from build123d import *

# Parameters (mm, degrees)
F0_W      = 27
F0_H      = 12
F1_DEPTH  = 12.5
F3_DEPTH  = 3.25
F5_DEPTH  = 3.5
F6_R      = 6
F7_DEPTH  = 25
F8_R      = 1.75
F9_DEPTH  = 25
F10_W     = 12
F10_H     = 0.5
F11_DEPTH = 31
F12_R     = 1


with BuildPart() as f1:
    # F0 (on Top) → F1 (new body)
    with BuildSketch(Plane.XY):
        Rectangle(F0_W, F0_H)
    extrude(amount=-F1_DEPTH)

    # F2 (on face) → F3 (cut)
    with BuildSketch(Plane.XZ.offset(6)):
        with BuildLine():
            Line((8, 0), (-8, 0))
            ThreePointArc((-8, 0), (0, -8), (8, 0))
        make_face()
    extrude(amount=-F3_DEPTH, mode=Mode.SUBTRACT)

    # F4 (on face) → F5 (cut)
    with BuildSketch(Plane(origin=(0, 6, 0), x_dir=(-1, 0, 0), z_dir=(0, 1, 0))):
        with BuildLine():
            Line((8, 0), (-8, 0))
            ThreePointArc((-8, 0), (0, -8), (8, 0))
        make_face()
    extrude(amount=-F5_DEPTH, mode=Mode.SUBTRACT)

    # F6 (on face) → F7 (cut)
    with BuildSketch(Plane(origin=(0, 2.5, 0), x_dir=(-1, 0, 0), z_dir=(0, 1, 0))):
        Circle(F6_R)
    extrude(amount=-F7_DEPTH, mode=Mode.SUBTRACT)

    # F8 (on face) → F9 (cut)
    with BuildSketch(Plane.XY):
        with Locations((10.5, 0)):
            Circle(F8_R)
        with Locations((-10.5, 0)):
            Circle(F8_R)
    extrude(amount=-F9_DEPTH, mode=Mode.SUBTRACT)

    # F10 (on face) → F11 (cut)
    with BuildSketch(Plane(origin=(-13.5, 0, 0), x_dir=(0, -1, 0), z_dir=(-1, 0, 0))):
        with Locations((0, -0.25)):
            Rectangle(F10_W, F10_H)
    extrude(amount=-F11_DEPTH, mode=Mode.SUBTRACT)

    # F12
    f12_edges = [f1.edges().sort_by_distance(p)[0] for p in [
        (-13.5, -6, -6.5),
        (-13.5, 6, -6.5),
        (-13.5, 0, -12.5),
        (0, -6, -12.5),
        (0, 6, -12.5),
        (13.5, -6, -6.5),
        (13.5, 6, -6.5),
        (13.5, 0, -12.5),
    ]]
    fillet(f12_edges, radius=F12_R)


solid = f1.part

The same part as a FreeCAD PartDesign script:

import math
import FreeCAD as App
import Part
import Sketcher

V = App.Vector


def edges_at(feature, points):
    """Names of the edges that pass closest to the given points."""
    edges = feature.Shape.Edges
    near = lambda p: min(range(len(edges)), key=lambda i: edges[i].distToShape(Part.Vertex(*p))[0])
    return sorted({f"Edge{near(p) + 1}" for p in points})


def add_polygon(sketch, points):
    """Adds a closed chain of lines whose ends are joined by coincident constraints."""
    first, n = sketch.GeometryCount, len(points)
    for a, b in zip(points, points[1:] + points[:1]):
        sketch.addGeometry(Part.LineSegment(App.Vector(*a, 0), App.Vector(*b, 0)), False)
    for i in range(n):
        sketch.addConstraint(Sketcher.Constraint("Coincident", first + i, 2, first + (i + 1) % n, 1))

doc = App.newDocument("Part")
params = doc.addObject("Spreadsheet::Sheet", "Params")
for row, (alias, value) in enumerate([
    ("sketch1_width", "27 mm"),
    ("sketch1_height", "12 mm"),
    ("pad1_length", "12.5 mm"),
    ("sketch2_radius", "8 mm"),
    ("pocket1_length", "3.25 mm"),
    ("sketch3_radius", "8 mm"),
    ("pocket2_length", "3.5 mm"),
    ("sketch4_diameter", "12 mm"),
    ("pocket3_length", "25 mm"),
    ("sketch5_diameter", "3.5 mm"),
    ("pocket4_length", "25 mm"),
    ("sketch6_width", "12 mm"),
    ("sketch6_height", "0.5 mm"),
    ("pocket5_length", "31 mm"),
    ("fillet_radius", "1 mm"),
], start=1):
    params.set(f"A{row}", alias)
    params.set(f"B{row}", "=" + value)
    params.setAlias(f"B{row}", alias)

body = doc.addObject("PartDesign::Body", "Body")

sketch1 = doc.addObject("Sketcher::SketchObject", "Sketch")
body.addObject(sketch1)
sketch1.AttachmentSupport = (doc.XY_Plane, [""])
sketch1.MapMode = "FlatFace"
add_polygon(sketch1, [(-13.5, 6), (-13.5, -6), (13.5, -6), (13.5, 6)])
sketch1.addConstraint([
    Sketcher.Constraint("Vertical", 0),
    Sketcher.Constraint("Horizontal", 1),
    Sketcher.Constraint("Vertical", 2),
    Sketcher.Constraint("Horizontal", 3),
    Sketcher.Constraint("Symmetric", 0, 2, 2, 2, -1, 1),
    Sketcher.Constraint("DistanceX", 1, 1, 1, 2, 27.0),
    Sketcher.Constraint("DistanceY", 0, 2, 0, 1, 12.0),
])
sketch1.setExpression("Constraints[9]", "Params.sketch1_width")
sketch1.setExpression("Constraints[10]", "Params.sketch1_height")
pad1 = doc.addObject("PartDesign::Pad", "Pad")
body.addObject(pad1)
pad1.Profile = sketch1
pad1.setExpression("Length", "Params.pad1_length")
pad1.Reversed = True

sketch2 = doc.addObject("Sketcher::SketchObject", "Sketch001")
body.addObject(sketch2)
sketch2.AttachmentSupport = (doc.XZ_Plane, [""])
sketch2.MapMode = "FlatFace"
sketch2.AttachmentOffset = App.Placement(V(0, 0, 6), App.Rotation())
sketch2.addGeometry([
    Part.LineSegment(V(8, 0, 0), V(-8, 0, 0)),
    Part.ArcOfCircle(Part.Circle(V(0, 0, 0), V(0, 0, 1), 8), math.radians(180), math.radians(360)),
], False)
sketch2.addConstraint([
    Sketcher.Constraint("Coincident", 0, 1, 1, 2),
    Sketcher.Constraint("Coincident", 1, 1, 0, 2),
    Sketcher.Constraint("Horizontal", 0),
    Sketcher.Constraint("Coincident", 1, 3, -1, 1),
    Sketcher.Constraint("PointOnObject", 0, 1, -1),
    Sketcher.Constraint("Radius", 1, 8.0),
])
sketch2.setExpression("Constraints[5]", "Params.sketch2_radius")
pocket1 = doc.addObject("PartDesign::Pocket", "Pocket")
body.addObject(pocket1)
pocket1.Profile = sketch2
pocket1.setExpression("Length", "Params.pocket1_length")

sketch3 = doc.addObject("Sketcher::SketchObject", "Sketch002")
body.addObject(sketch3)
sketch3.AttachmentSupport = (doc.XZ_Plane, [""])
sketch3.MapMode = "FlatFace"
sketch3.AttachmentOffset = App.Placement(V(0, 0, -6), App.Rotation())
sketch3.addGeometry([
    Part.LineSegment(V(-8, 0, 0), V(8, 0, 0)),
    Part.ArcOfCircle(Part.Circle(V(0, 0, 0), V(0, 0, 1), 8), math.radians(180), math.radians(360)),
], False)
sketch3.addConstraint([
    Sketcher.Constraint("Coincident", 0, 1, 1, 1),
    Sketcher.Constraint("Coincident", 1, 2, 0, 2),
    Sketcher.Constraint("Horizontal", 0),
    Sketcher.Constraint("Coincident", 1, 3, -1, 1),
    Sketcher.Constraint("PointOnObject", 0, 1, -1),
    Sketcher.Constraint("Radius", 1, 8.0),
])
sketch3.setExpression("Constraints[5]", "Params.sketch3_radius")
pocket2 = doc.addObject("PartDesign::Pocket", "Pocket001")
body.addObject(pocket2)
pocket2.Profile = sketch3
pocket2.setExpression("Length", "Params.pocket2_length")
pocket2.Reversed = True

sketch4 = doc.addObject("Sketcher::SketchObject", "Sketch003")
body.addObject(sketch4)
sketch4.AttachmentSupport = (doc.XZ_Plane, [""])
sketch4.MapMode = "FlatFace"
sketch4.AttachmentOffset = App.Placement(V(0, 0, -2.5), App.Rotation())
sketch4.addGeometry(Part.Circle(V(0, 0, 0), V(0, 0, 1), 6), False)
sketch4.addConstraint([
    Sketcher.Constraint("Coincident", 0, 3, -1, 1),
    Sketcher.Constraint("Diameter", 0, 12.0),
])
sketch4.setExpression("Constraints[1]", "Params.sketch4_diameter")
pocket3 = doc.addObject("PartDesign::Pocket", "Pocket002")
body.addObject(pocket3)
pocket3.Profile = sketch4
pocket3.setExpression("Length", "Params.pocket3_length")
pocket3.Reversed = True

sketch5 = doc.addObject("Sketcher::SketchObject", "Sketch004")
body.addObject(sketch5)
sketch5.AttachmentSupport = (doc.XY_Plane, [""])
sketch5.MapMode = "FlatFace"
sketch5.addGeometry([
    Part.Circle(V(10.5, 0, 0), V(0, 0, 1), 1.75),
    Part.Circle(V(-10.5, 0, 0), V(0, 0, 1), 1.75),
], False)
sketch5.addConstraint([
    Sketcher.Constraint("Equal", 0, 1),
    Sketcher.Constraint("Symmetric", 0, 3, 1, 3, -1, 1),
    Sketcher.Constraint("PointOnObject", 0, 3, -1),
    Sketcher.Constraint("Diameter", 0, 3.5),
    Sketcher.Constraint("DistanceX", 1, 3, 0, 3, 21.0),
])
sketch5.setExpression("Constraints[3]", "Params.sketch5_diameter")
pocket4 = doc.addObject("PartDesign::Pocket", "Pocket003")
body.addObject(pocket4)
pocket4.Profile = sketch5
pocket4.setExpression("Length", "Params.pocket4_length")

sketch6 = doc.addObject("Sketcher::SketchObject", "Sketch005")
body.addObject(sketch6)
sketch6.AttachmentSupport = (doc.YZ_Plane, [""])
sketch6.MapMode = "FlatFace"
sketch6.AttachmentOffset = App.Placement(V(0, 0, -13.5), App.Rotation())
add_polygon(sketch6, [(6, 0), (6, -0.5), (-6, -0.5), (-6, 0)])
sketch6.addConstraint([
    Sketcher.Constraint("Vertical", 0),
    Sketcher.Constraint("Horizontal", 1),
    Sketcher.Constraint("Vertical", 2),
    Sketcher.Constraint("Horizontal", 3),
    Sketcher.Constraint("Symmetric", 2, 2, 3, 2, -1, 1),
    Sketcher.Constraint("DistanceX", 1, 2, 1, 1, 12.0),
    Sketcher.Constraint("DistanceY", 0, 2, 0, 1, 0.5),
])
sketch6.setExpression("Constraints[9]", "Params.sketch6_width")
sketch6.setExpression("Constraints[10]", "Params.sketch6_height")
pocket5 = doc.addObject("PartDesign::Pocket", "Pocket004")
body.addObject(pocket5)
pocket5.Profile = sketch6
pocket5.setExpression("Length", "Params.pocket5_length")
pocket5.Reversed = True
doc.recompute()

fillet = doc.addObject("PartDesign::Fillet", "Fillet")
body.addObject(fillet)
fillet.Base = (pocket5, edges_at(pocket5, [
    (-13.5, -6, -6.5),
    (-13.5, 6, -6.5),
    (-13.5, 0, -12.5),
    (0, -6, -12.5),
    (0, 6, -12.5),
    (13.5, -6, -6.5),
    (13.5, 6, -6.5),
    (13.5, 0, -12.5),
]))
fillet.setExpression("Radius", "Params.fillet_radius")

doc.recompute()
